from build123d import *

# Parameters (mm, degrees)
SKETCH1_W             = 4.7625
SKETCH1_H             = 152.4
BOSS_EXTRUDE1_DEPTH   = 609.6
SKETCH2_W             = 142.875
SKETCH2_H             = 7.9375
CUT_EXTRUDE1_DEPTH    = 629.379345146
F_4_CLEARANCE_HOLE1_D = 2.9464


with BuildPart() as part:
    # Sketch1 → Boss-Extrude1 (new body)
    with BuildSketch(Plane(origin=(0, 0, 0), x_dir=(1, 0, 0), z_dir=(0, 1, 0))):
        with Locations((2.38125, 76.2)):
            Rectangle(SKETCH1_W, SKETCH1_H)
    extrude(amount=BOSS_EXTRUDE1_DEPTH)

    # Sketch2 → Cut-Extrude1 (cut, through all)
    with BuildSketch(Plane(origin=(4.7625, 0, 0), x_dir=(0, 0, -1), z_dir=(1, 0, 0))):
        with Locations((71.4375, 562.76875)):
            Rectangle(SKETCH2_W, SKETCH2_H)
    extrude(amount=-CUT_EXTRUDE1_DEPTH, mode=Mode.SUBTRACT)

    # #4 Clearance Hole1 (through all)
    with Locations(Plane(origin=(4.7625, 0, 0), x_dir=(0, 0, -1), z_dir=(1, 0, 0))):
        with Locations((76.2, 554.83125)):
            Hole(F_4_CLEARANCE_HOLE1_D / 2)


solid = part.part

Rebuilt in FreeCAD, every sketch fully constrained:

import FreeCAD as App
import Part
import Sketcher

V = App.Vector
Q = App.Units.Quantity

doc = App.newDocument("Part")
body = doc.addObject("PartDesign::Body", "Body")

# Sketch on XZ plane
sketch1 = body.newObject("Sketcher::SketchObject", "Sketch")
sketch1.AttachmentSupport = (doc.getObject("XZ_Plane"), [""])
sketch1.MapMode = "FlatFace"
sketch1.addGeometry([
    Part.LineSegment(V(0, -152.4, 0), V(0, 0, 0)),
    Part.LineSegment(V(0, 0, 0), V(4.7625, 0, 0)),
    Part.LineSegment(V(4.7625, 0, 0), V(4.7625, -152.4, 0)),
    Part.LineSegment(V(4.7625, -152.4, 0), V(0, -152.4, 0)),
], False)
sketch1.addConstraint([
    Sketcher.Constraint("Coincident", 0, 2, 1, 1),
    Sketcher.Constraint("Coincident", 1, 2, 2, 1),
    Sketcher.Constraint("Coincident", 2, 2, 3, 1),
    Sketcher.Constraint("Coincident", 3, 2, 0, 1),
    Sketcher.Constraint("Vertical", 0),
    Sketcher.Constraint("Horizontal", 1),
    Sketcher.Constraint("Vertical", 2),
    Sketcher.Constraint("Horizontal", 3),
    Sketcher.Constraint("Coincident", 0, 2, -1, 1),
    Sketcher.Constraint("DistanceY", 0, 1, 0, 2, Q("6 in")),
    Sketcher.Constraint("DistanceX", 1, 1, 1, 2, Q("0.1875 in")),
])
pad1 = body.newObject("PartDesign::Pad", "Pad")
pad1.Profile = sketch1
pad1.Length = Q("24 in")
pad1.Reversed = True

# Sketch on YZ plane
sketch2 = body.newObject("Sketcher::SketchObject", "Sketch001")
sketch2.AttachmentSupport = (doc.getObject("YZ_Plane"), [""])
sketch2.MapMode = "FlatFace"
sketch2.AttachmentOffset = App.Placement(V(0, 0, 0.1875 * 25.4), App.Rotation())
sketch2.addGeometry([
    Part.LineSegment(V(566.7375, 0, 0), V(558.8, 0, 0)),
    Part.LineSegment(V(558.8, 0, 0), V(558.8, -142.875, 0)),
    Part.LineSegment(V(558.8, -142.875, 0), V(566.7375, -142.875, 0)),
    Part.LineSegment(V(566.7375, -142.875, 0), V(566.7375, 0, 0)),
], False)
sketch2.addConstraint([
    Sketcher.Constraint("Coincident", 0, 2, 1, 1),
    Sketcher.Constraint("Coincident", 1, 2, 2, 1),
    Sketcher.Constraint("Coincident", 2, 2, 3, 1),
    Sketcher.Constraint("Coincident", 3, 2, 0, 1),
    Sketcher.Constraint("Horizontal", 0),
    Sketcher.Constraint("Vertical", 1),
    Sketcher.Constraint("Horizontal", 2),
    Sketcher.Constraint("Vertical", 3),
    Sketcher.Constraint("PointOnObject", 0, 2, -1),
    Sketcher.Constraint("DistanceX", -1, 1, 0, 2, Q("22 in")),
    Sketcher.Constraint("DistanceX", 0, 2, 0, 1, Q("0.3125 in")),
    Sketcher.Constraint("DistanceY", 1, 2, 1, 1, Q("5.625 in")),
])
pocket1 = body.newObject("PartDesign::Pocket", "Pocket")
pocket1.Profile = sketch2
pocket1.Type = "ThroughAll"

# Sketch on YZ plane
sketch3 = body.newObject("Sketcher::SketchObject", "Sketch002")
sketch3.AttachmentSupport = (doc.getObject("YZ_Plane"), [""])
sketch3.MapMode = "FlatFace"
sketch3.AttachmentOffset = App.Placement(V(0, 0, 0.1875 * 25.4), App.Rotation())
sketch3.addGeometry(Part.Circle(V(554.83125, -76.2, 0), V(0, 0, 1), 1.4732), False)
sketch3.addConstraint([
    Sketcher.Constraint("Diameter", 0, Q("0.116 in")),
    Sketcher.Constraint("DistanceY", 0, 3, -1, 1, Q("3 in")),
    Sketcher.Constraint("DistanceX", -1, 1, 0, 3, Q("21.84375 in")),
])
doc.recompute()
hole = body.newObject("PartDesign::Hole", "Hole")
hole.Profile = sketch3
hole.ThreadType = "None"
hole.Diameter = Q("0.116 in")
hole.DepthType = "ThroughAll"

doc.recompute()
